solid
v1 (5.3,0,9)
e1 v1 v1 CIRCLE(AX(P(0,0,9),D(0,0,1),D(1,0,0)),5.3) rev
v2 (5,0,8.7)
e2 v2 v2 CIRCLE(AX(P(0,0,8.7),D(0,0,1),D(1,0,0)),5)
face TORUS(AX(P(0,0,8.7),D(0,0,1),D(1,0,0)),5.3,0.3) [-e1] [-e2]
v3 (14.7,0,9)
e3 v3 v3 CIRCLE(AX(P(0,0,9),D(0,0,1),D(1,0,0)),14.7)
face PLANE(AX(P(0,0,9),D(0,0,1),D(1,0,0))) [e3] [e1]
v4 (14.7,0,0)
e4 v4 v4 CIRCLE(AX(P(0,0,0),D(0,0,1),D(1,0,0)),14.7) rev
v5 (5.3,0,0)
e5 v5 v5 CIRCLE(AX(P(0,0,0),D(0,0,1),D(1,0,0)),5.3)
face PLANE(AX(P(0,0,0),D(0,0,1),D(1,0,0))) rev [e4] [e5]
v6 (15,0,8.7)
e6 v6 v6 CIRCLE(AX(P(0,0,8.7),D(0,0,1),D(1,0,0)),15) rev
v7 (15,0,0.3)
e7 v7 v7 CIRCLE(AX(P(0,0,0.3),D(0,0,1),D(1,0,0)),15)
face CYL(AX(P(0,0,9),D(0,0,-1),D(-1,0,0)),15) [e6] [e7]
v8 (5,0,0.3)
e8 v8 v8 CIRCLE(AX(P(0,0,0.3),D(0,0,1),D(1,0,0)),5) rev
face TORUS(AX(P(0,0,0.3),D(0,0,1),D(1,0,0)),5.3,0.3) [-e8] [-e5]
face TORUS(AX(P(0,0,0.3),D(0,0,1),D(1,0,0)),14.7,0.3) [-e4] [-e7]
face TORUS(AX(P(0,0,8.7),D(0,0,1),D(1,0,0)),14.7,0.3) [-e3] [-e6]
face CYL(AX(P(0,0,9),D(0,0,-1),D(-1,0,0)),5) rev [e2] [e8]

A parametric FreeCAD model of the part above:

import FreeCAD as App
import Part
import Sketcher
from FreeCAD import Vector


def edges_at(feature, points):
    """Names of the edges that pass closest to the given points."""
    edges = feature.Shape.Edges
    near = lambda p: min(range(len(edges)), key=lambda i: edges[i].distToShape(Part.Vertex(*p))[0])
    return sorted({f"Edge{near(p) + 1}" for p in points})

doc = App.newDocument("Part")
body = doc.addObject("PartDesign::Body", "Body")

# Sketch on XY plane
sketch1 = body.newObject("Sketcher::SketchObject", "Sketch")
sketch1.AttachmentSupport = (doc.getObject("XY_Plane"), [""])
sketch1.MapMode = "FlatFace"
sketch1.addGeometry(Part.Circle(Vector(0, 0, 0), Vector(0, 0, 1), 15), False)
sketch1.addGeometry(Part.Circle(Vector(0, 0, 0), Vector(0, 0, 1), 5), False)
sketch1.addConstraint(Sketcher.Constraint("Coincident", 0, 3, -1, 1))
sketch1.addConstraint(Sketcher.Constraint("Coincident", 1, 3, -1, 1))
sketch1.addConstraint(Sketcher.Constraint("Diameter", 0, 30.0))
sketch1.addConstraint(Sketcher.Constraint("Diameter", 1, 10.0))
pad1 = body.newObject("PartDesign::Pad", "Pad")
pad1.Profile = sketch1
pad1.Length = 9
doc.recompute()

fillet = body.newObject("PartDesign::Fillet", "Fillet")
fillet.Base = (pad1, edges_at(pad1, [
    (-15, 0, 0),
    (-15, 0, 9),
    (-5, 0, 0),
    (-5, 0, 9),
]))
fillet.Radius = 0.3

doc.recompute()
